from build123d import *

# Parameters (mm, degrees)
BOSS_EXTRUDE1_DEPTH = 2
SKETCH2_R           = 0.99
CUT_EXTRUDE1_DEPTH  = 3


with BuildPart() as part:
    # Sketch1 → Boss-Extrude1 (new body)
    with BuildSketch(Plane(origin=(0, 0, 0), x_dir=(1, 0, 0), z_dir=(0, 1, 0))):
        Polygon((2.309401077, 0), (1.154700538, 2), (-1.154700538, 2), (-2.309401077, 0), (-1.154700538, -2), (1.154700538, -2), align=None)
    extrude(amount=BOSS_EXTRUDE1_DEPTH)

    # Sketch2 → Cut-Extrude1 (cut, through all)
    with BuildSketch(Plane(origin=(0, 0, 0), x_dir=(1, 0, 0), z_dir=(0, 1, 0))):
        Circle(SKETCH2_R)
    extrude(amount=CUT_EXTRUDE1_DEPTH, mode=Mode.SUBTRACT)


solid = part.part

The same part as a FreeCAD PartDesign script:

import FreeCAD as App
import Part
import Sketcher

V = App.Vector
Q = App.Units.Quantity

doc = App.newDocument("Part")
body = doc.addObject("PartDesign::Body", "Body")

sketch1 = body.newObject("Sketcher::SketchObject", "Sketch")
sketch1.AttachmentSupport = (doc.getObject("XZ_Plane"), [""])
sketch1.MapMode = "FlatFace"
sketch1.addGeometry([
    Part.LineSegment(V(2.3, 0, 0), V(1.2, -2, 0)),
    Part.LineSegment(V(1.2, -2, 0), V(-1.2, -2, 0)),
    Part.LineSegment(V(-1.2, -2, 0), V(-2.3, 0, 0)),
    Part.LineSegment(V(-2.3, 0, 0), V(-1.2, 2, 0)),
    Part.LineSegment(V(-1.2, 2, 0), V(1.2, 2, 0)),
    Part.LineSegment(V(1.2, 2, 0), V(2.3, 0, 0)),
], False)
sketch1.addConstraint([
    Sketcher.Constraint("Coincident", 0, 2, 1, 1),
    Sketcher.Constraint("Coincident", 1, 2, 2, 1),
    Sketcher.Constraint("Coincident", 2, 2, 3, 1),
    Sketcher.Constraint("Coincident", 3, 2, 4, 1),
    Sketcher.Constraint("Coincident", 4, 2, 5, 1),
    Sketcher.Constraint("Coincident", 5, 2, 0, 1),
    Sketcher.Constraint("Horizontal", 1),
    Sketcher.Constraint("Horizontal", 4),
    Sketcher.Constraint("Symmetric", 0, 2, 3, 2, -1, 1),
    Sketcher.Constraint("Symmetric", 2, 2, 5, 2, -1, 1),
    Sketcher.Constraint("PointOnObject", 2, 2, -1),
    Sketcher.Constraint("Parallel", 2, 5),
    Sketcher.Constraint("Vertical", 1, 2, 3, 2),
    Sketcher.Constraint("Angle", 0, Q("-120 deg")),
    Sketcher.Constraint("DistanceY", 0, 2, -1, 1, 2.0),
    Sketcher.Constraint("DistanceX", 1, 2, 1, 1, 2.309401),
])
pad1 = body.newObject("PartDesign::Pad", "Pad")
pad1.Profile = sketch1
pad1.Length = 2
pad1.Reversed = True

sketch2 = body.newObject("Sketcher::SketchObject", "Sketch001")
sketch2.AttachmentSupport = (doc.getObject("XZ_Plane"), [""])
sketch2.MapMode = "FlatFace"
sketch2.addGeometry(Part.Circle(V(0, 0, 0), V(0, 0, 1), 1), False)
sketch2.addConstraint([
    Sketcher.Constraint("Coincident", 0, 3, -1, 1),
    Sketcher.Constraint("Diameter", 0, 1.98),
])
pocket1 = body.newObject("PartDesign::Pocket", "Pocket")
pocket1.Profile = sketch2
pocket1.Type = "ThroughAll"

doc.recompute()
